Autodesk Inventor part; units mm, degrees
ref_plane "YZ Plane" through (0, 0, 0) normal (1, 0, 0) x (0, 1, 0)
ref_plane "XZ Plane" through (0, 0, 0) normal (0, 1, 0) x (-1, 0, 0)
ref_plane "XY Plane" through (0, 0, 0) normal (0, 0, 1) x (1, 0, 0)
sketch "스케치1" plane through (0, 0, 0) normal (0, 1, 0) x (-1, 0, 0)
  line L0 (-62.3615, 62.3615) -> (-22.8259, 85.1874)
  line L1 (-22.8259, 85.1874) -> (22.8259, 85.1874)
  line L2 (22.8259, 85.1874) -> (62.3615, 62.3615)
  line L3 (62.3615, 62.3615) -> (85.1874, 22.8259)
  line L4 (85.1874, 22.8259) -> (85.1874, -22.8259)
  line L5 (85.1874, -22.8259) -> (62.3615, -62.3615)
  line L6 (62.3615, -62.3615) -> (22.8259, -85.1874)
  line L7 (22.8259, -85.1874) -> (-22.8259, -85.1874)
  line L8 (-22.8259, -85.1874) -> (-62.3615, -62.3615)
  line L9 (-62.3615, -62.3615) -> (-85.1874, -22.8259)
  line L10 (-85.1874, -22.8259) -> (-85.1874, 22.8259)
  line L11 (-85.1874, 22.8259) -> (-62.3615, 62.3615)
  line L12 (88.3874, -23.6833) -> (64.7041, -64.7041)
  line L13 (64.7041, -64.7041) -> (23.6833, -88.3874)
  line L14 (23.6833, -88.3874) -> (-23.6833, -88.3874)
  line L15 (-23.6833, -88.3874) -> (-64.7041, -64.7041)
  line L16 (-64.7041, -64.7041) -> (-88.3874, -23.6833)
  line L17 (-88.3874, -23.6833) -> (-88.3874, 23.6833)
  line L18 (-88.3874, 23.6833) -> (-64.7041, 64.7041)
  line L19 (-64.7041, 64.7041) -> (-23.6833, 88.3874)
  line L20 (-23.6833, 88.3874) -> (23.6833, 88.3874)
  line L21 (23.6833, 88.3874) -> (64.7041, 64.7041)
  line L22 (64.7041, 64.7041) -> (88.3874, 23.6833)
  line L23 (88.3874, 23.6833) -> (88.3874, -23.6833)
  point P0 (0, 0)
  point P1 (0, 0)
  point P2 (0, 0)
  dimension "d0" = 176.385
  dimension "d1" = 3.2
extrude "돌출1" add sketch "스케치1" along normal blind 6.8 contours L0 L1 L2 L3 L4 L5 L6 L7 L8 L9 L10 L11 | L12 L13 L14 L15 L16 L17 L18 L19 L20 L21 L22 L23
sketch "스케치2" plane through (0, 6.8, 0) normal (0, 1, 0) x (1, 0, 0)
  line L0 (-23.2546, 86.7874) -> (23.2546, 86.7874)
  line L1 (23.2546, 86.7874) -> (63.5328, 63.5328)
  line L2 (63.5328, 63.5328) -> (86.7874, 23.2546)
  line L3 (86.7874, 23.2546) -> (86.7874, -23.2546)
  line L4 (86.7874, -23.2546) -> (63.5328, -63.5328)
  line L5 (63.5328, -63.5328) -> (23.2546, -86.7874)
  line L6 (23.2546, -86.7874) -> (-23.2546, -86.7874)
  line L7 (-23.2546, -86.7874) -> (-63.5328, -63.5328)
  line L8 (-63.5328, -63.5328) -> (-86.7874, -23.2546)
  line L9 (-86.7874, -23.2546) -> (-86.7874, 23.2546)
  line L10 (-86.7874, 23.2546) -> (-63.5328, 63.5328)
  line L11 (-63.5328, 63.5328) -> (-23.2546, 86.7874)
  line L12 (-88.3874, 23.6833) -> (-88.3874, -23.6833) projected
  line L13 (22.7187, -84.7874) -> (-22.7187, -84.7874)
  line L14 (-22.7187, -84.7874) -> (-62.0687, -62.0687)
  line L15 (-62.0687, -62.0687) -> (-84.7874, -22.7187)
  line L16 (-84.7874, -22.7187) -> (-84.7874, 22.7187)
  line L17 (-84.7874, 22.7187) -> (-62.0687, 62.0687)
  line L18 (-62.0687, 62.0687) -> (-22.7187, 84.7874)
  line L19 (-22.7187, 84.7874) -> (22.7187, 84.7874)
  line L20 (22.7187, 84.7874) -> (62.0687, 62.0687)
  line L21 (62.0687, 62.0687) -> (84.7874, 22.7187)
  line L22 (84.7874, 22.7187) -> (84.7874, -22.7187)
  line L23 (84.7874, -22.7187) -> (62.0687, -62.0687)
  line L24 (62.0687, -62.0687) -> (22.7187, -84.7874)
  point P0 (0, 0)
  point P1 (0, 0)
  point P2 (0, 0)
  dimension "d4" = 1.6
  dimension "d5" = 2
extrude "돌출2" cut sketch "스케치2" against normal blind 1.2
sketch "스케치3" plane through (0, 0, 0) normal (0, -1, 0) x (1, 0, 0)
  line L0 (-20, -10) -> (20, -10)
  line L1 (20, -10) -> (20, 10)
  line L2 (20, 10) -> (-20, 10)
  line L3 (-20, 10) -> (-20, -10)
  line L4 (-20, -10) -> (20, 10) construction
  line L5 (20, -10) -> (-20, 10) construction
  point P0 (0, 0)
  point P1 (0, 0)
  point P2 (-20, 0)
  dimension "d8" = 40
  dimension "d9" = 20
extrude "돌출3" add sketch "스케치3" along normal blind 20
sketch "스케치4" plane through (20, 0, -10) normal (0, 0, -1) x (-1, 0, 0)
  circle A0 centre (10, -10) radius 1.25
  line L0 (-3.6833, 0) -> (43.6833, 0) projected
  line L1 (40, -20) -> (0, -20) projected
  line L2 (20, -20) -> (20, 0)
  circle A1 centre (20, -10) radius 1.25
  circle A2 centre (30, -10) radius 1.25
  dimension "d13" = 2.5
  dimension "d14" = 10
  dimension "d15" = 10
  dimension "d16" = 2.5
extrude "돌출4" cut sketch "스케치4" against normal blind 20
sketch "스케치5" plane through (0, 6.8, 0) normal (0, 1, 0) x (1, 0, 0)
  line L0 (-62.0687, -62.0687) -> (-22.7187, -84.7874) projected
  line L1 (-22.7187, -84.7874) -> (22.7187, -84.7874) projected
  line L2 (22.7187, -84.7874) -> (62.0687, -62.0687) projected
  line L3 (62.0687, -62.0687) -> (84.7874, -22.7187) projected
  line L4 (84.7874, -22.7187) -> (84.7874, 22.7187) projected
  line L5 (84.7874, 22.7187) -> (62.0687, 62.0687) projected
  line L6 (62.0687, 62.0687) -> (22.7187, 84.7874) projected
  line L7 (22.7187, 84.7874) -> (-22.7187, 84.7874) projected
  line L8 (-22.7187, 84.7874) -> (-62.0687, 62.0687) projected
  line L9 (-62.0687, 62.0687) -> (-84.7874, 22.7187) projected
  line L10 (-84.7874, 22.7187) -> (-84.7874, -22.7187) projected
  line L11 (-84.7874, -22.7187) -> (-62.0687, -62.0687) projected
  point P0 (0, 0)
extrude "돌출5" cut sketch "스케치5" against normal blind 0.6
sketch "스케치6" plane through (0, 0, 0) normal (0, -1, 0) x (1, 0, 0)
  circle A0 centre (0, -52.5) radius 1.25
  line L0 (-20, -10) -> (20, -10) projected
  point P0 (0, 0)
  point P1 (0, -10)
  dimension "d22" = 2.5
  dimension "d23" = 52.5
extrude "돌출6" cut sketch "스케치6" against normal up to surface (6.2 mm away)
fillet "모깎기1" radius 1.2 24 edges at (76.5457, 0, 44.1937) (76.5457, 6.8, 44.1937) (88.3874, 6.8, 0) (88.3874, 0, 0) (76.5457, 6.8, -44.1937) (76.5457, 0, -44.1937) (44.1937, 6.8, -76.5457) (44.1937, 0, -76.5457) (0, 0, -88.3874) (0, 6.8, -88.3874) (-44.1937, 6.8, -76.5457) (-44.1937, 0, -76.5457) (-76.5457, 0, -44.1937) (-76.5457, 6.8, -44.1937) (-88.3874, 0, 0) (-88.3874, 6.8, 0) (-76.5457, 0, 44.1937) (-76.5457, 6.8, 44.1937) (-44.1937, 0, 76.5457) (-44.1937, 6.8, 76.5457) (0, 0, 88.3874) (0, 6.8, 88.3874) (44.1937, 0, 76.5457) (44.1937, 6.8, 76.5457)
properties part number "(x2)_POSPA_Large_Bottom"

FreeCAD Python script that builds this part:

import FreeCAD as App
import Part
import Sketcher
from FreeCAD import Vector
Q = App.Units.Quantity


def edges_at(feature, points):
    """Names of the edges that pass closest to the given points."""
    edges = feature.Shape.Edges
    near = lambda p: min(range(len(edges)), key=lambda i: edges[i].distToShape(Part.Vertex(*p))[0])
    return sorted({f"Edge{near(p) + 1}" for p in points})


def add_polygon(sketch, points):
    """Adds a closed chain of lines whose ends are joined by coincident constraints."""
    first, n = sketch.GeometryCount, len(points)
    for a, b in zip(points, points[1:] + points[:1]):
        sketch.addGeometry(Part.LineSegment(App.Vector(*a, 0), App.Vector(*b, 0)), False)
    for i in range(n):
        sketch.addConstraint(Sketcher.Constraint("Coincident", first + i, 2, first + (i + 1) % n, 1))

doc = App.newDocument("Part")
body = doc.addObject("PartDesign::Body", "Body")

sketch1 = doc.addObject("Sketcher::SketchObject", "Sketch")
body.addObject(sketch1)
sketch1.AttachmentSupport = (doc.XZ_Plane, [""])
sketch1.MapMode = "FlatFace"
add_polygon(sketch1, [(-64.7041, -64.7041), (-88.3874, -23.6833), (-88.3874, 23.6833), (-64.7041, 64.7041), (-23.6833, 88.3874), (23.6833, 88.3874), (64.7041, 64.7041), (88.3874, 23.6833), (88.3874, -23.6833), (64.7041, -64.7041), (23.6833, -88.3874), (-23.6833, -88.3874)])
sketch1.addConstraint(Sketcher.Constraint("Vertical", 1))
sketch1.addConstraint(Sketcher.Constraint("Horizontal", 4))
sketch1.addConstraint(Sketcher.Constraint("Vertical", 7))
sketch1.addConstraint(Sketcher.Constraint("Horizontal", 10))
sketch1.addConstraint(Sketcher.Constraint("Symmetric", 0, 2, 6, 2, -1, 1))
sketch1.addConstraint(Sketcher.Constraint("Symmetric", 2, 2, 8, 2, -1, 1))
sketch1.addConstraint(Sketcher.Constraint("Symmetric", 3, 2, 9, 2, -1, 1))
sketch1.addConstraint(Sketcher.Constraint("Symmetric", 5, 2, 11, 2, -1, 1))
sketch1.addConstraint(Sketcher.Constraint("Symmetric", 2, 2, 5, 2, -2))
sketch1.addConstraint(Sketcher.Constraint("Perpendicular", 0, 3))
sketch1.addConstraint(Sketcher.Constraint("Perpendicular", 2, 5))
sketch1.addConstraint(Sketcher.Constraint("Perpendicular", 5, 8))
sketch1.addConstraint(Sketcher.Constraint("Perpendicular", 8, 11))
sketch1.addConstraint(Sketcher.Constraint("Horizontal", 1, 2, 6, 2))
sketch1.addConstraint(Sketcher.Constraint("Equal", 10, 1))
sketch1.addConstraint(Sketcher.Constraint("Equal", 2, 3))
sketch1.addConstraint(Sketcher.Constraint("Angle", 0, Q("120 deg")))
sketch1.addConstraint(Sketcher.Constraint("DistanceX", 4, 1, 4, 2, 47.3666))
sketch1.addConstraint(Sketcher.Constraint("DistanceX", 2, 2, -1, 1, 64.704))
pad1 = doc.addObject("PartDesign::Pad", "Pad")
body.addObject(pad1)
pad1.Profile = sketch1
pad1.Length = 6.8
pad1.Reversed = True

sketch2 = doc.addObject("Sketcher::SketchObject", "Sketch001")
body.addObject(sketch2)
sketch2.AttachmentSupport = (doc.XZ_Plane, [""])
sketch2.MapMode = "FlatFace"
sketch2.AttachmentOffset = App.Placement(Vector(0, 0, -6.8), App.Rotation())
add_polygon(sketch2, [(23.2546, -86.7874), (-23.2546, -86.7874), (-63.5328, -63.5328), (-86.7874, -23.2546), (-86.7874, 23.2546), (-63.5328, 63.5328), (-23.2546, 86.7874), (23.2546, 86.7874), (63.5328, 63.5328), (86.7874, 23.2546), (86.7874, -23.2546), (63.5328, -63.5328)])
add_polygon(sketch2, [(62.0687, 62.0687), (22.7187, 84.7874), (-22.7187, 84.7874), (-62.0687, 62.0687), (-84.7874, 22.7187), (-84.7874, -22.7187), (-62.0687, -62.0687), (-22.7187, -84.7874), (22.7187, -84.7874), (62.0687, -62.0687), (84.7874, -22.7187), (84.7874, 22.7187)])
sketch2.addConstraint(Sketcher.Constraint("Horizontal", 0))
sketch2.addConstraint(Sketcher.Constraint("Vertical", 3))
sketch2.addConstraint(Sketcher.Constraint("Horizontal", 6))
sketch2.addConstraint(Sketcher.Constraint("Vertical", 9))
sketch2.addConstraint(Sketcher.Constraint("Horizontal", 13))
sketch2.addConstraint(Sketcher.Constraint("Vertical", 16))
sketch2.addConstraint(Sketcher.Constraint("Horizontal", 19))
sketch2.addConstraint(Sketcher.Constraint("Vertical", 22))
sketch2.addConstraint(Sketcher.Constraint("Symmetric", 0, 2, 6, 2, -1, 1))
sketch2.addConstraint(Sketcher.Constraint("Symmetric", 1, 2, 7, 2, -1, 1))
sketch2.addConstraint(Sketcher.Constraint("Symmetric", 2, 2, 8, 2, -1, 1))
sketch2.addConstraint(Sketcher.Constraint("Symmetric", 4, 2, 10, 2, -1, 1))
sketch2.addConstraint(Sketcher.Constraint("Symmetric", 12, 2, 18, 2, -1, 1))
sketch2.addConstraint(Sketcher.Constraint("Symmetric", 14, 2, 20, 2, -1, 1))
sketch2.addConstraint(Sketcher.Constraint("Symmetric", 15, 2, 21, 2, -1, 1))
sketch2.addConstraint(Sketcher.Constraint("Symmetric", 17, 2, 23, 2, -1, 1))
sketch2.addConstraint(Sketcher.Constraint("Symmetric", 4, 2, 7, 2, -2))
sketch2.addConstraint(Sketcher.Constraint("Symmetric", 17, 2, 20, 2, -2))
sketch2.addConstraint(Sketcher.Constraint("Perpendicular", 1, 4))
sketch2.addConstraint(Sketcher.Constraint("Perpendicular", 2, 5))
sketch2.addConstraint(Sketcher.Constraint("Perpendicular", 7, 10))
sketch2.addConstraint(Sketcher.Constraint("Perpendicular", 8, 11))
sketch2.addConstraint(Sketcher.Constraint("Perpendicular", 10, 12))
sketch2.addConstraint(Sketcher.Constraint("Parallel", 11, 14))
sketch2.addConstraint(Sketcher.Constraint("Perpendicular", 12, 15))
sketch2.addConstraint(Sketcher.Constraint("Perpendicular", 14, 17))
sketch2.addConstraint(Sketcher.Constraint("Perpendicular", 17, 20))
sketch2.addConstraint(Sketcher.Constraint("Perpendicular", 20, 23))
sketch2.addConstraint(Sketcher.Constraint("Horizontal", 3, 2, 8, 2))
sketch2.addConstraint(Sketcher.Constraint("Equal", 6, 3))
sketch2.addConstraint(Sketcher.Constraint("Equal", 19, 16))
sketch2.addConstraint(Sketcher.Constraint("Equal", 1, 2))
sketch2.addConstraint(Sketcher.Constraint("Equal", 14, 15))
sketch2.addConstraint(Sketcher.Constraint("DistanceY", 12, 2, 6, 2, 2.0))
sketch2.addConstraint(Sketcher.Constraint("Angle", 1, Q("150 deg")))
sketch2.addConstraint(Sketcher.Constraint("DistanceX", 14, 2, 13, 2, 39.35))
sketch2.addConstraint(Sketcher.Constraint("DistanceX", 0, 2, 0, 1, 46.5092))
sketch2.addConstraint(Sketcher.Constraint("DistanceX", 13, 2, 13, 1, 45.4374))
pocket1 = doc.addObject("PartDesign::Pocket", "Pocket")
body.addObject(pocket1)
pocket1.Profile = sketch2
pocket1.Length = 1.2
pocket1.Reversed = True

sketch3 = doc.addObject("Sketcher::SketchObject", "Sketch002")
body.addObject(sketch3)
sketch3.AttachmentSupport = (doc.XZ_Plane, [""])
sketch3.MapMode = "FlatFace"
add_polygon(sketch3, [(-20, 10), (-20, -10), (20, -10), (20, 10)])
sketch3.addConstraint(Sketcher.Constraint("Vertical", 0))
sketch3.addConstraint(Sketcher.Constraint("Horizontal", 1))
sketch3.addConstraint(Sketcher.Constraint("Vertical", 2))
sketch3.addConstraint(Sketcher.Constraint("Horizontal", 3))
sketch3.addConstraint(Sketcher.Constraint("Symmetric", 0, 2, 2, 2, -1, 1))
sketch3.addConstraint(Sketcher.Constraint("DistanceX", 1, 1, 1, 2, 40.0))
sketch3.addConstraint(Sketcher.Constraint("DistanceY", 0, 2, 0, 1, 20.0))
pad2 = doc.addObject("PartDesign::Pad", "Pad001")
body.addObject(pad2)
pad2.Profile = sketch3
pad2.Length = 20

sketch4 = doc.addObject("Sketcher::SketchObject", "Sketch003")
body.addObject(sketch4)
sketch4.AttachmentSupport = (doc.XY_Plane, [""])
sketch4.MapMode = "FlatFace"
sketch4.AttachmentOffset = App.Placement(Vector(0, 0, -10), App.Rotation())
sketch4.addGeometry(Part.Circle(Vector(10, -10, 0), Vector(0, 0, 1), 1.25), False)
sketch4.addGeometry(Part.Circle(Vector(0, -10, 0), Vector(0, 0, 1), 1.25), False)
sketch4.addGeometry(Part.Circle(Vector(-10, -10, 0), Vector(0, 0, 1), 1.25), False)
sketch4.addConstraint(Sketcher.Constraint("Equal", 0, 1))
sketch4.addConstraint(Sketcher.Constraint("Equal", 1, 2))
sketch4.addConstraint(Sketcher.Constraint("Symmetric", 0, 3, 2, 3, -2))
sketch4.addConstraint(Sketcher.Constraint("PointOnObject", 1, 3, -2))
sketch4.addConstraint(Sketcher.Constraint("Horizontal", 0, 3, 1, 3))
sketch4.addConstraint(Sketcher.Constraint("Diameter", 0, 2.5))
sketch4.addConstraint(Sketcher.Constraint("DistanceX", -1, 1, 0, 3, 10.0))
sketch4.addConstraint(Sketcher.Constraint("DistanceY", 0, 3, -1, 1, 10.0))
pocket2 = doc.addObject("PartDesign::Pocket", "Pocket001")
body.addObject(pocket2)
pocket2.Profile = sketch4
pocket2.Length = 20
pocket2.Reversed = True

sketch5 = doc.addObject("Sketcher::SketchObject", "Sketch004")
body.addObject(sketch5)
sketch5.AttachmentSupport = (doc.XZ_Plane, [""])
sketch5.MapMode = "FlatFace"
sketch5.AttachmentOffset = App.Placement(Vector(0, 0, -6.8), App.Rotation())
add_polygon(sketch5, [(-84.7874, 22.7187), (-62.0687, 62.0687), (-22.7187, 84.7874), (22.7187, 84.7874), (62.0687, 62.0687), (84.7874, 22.7187), (84.7874, -22.7187), (62.0687, -62.0687), (22.7187, -84.7874), (-22.7187, -84.7874), (-62.0687, -62.0687), (-84.7874, -22.7187)])
sketch5.addConstraint(Sketcher.Constraint("Horizontal", 2))
sketch5.addConstraint(Sketcher.Constraint("Vertical", 5))
sketch5.addConstraint(Sketcher.Constraint("Horizontal", 8))
sketch5.addConstraint(Sketcher.Constraint("Vertical", 11))
sketch5.addConstraint(Sketcher.Constraint("Symmetric", 0, 2, 6, 2, -1, 1))
sketch5.addConstraint(Sketcher.Constraint("Symmetric", 1, 2, 7, 2, -1, 1))
sketch5.addConstraint(Sketcher.Constraint("Symmetric", 3, 2, 9, 2, -1, 1))
sketch5.addConstraint(Sketcher.Constraint("Symmetric", 4, 2, 10, 2, -1, 1))
sketch5.addConstraint(Sketcher.Constraint("Symmetric", 0, 2, 3, 2, -2))
sketch5.addConstraint(Sketcher.Constraint("Perpendicular", 0, 3))
sketch5.addConstraint(Sketcher.Constraint("Perpendicular", 1, 4))
sketch5.addConstraint(Sketcher.Constraint("Perpendicular", 3, 6))
sketch5.addConstraint(Sketcher.Constraint("Perpendicular", 6, 9))
sketch5.addConstraint(Sketcher.Constraint("Horizontal", 5, 2, 10, 2))
sketch5.addConstraint(Sketcher.Constraint("Equal", 8, 5))
sketch5.addConstraint(Sketcher.Constraint("Equal", 0, 1))
sketch5.addConstraint(Sketcher.Constraint("Angle", 0, Q("60 deg")))
sketch5.addConstraint(Sketcher.Constraint("DistanceX", 0, 2, 1, 2, 39.35))
sketch5.addConstraint(Sketcher.Constraint("DistanceX", 2, 1, 2, 2, 45.4374))
pocket3 = doc.addObject("PartDesign::Pocket", "Pocket002")
body.addObject(pocket3)
pocket3.Profile = sketch5
pocket3.Length = 0.6
pocket3.Reversed = True

sketch6 = doc.addObject("Sketcher::SketchObject", "Sketch005")
body.addObject(sketch6)
sketch6.AttachmentSupport = (doc.XZ_Plane, [""])
sketch6.MapMode = "FlatFace"
sketch6.addGeometry(Part.Circle(Vector(0, -52.5, 0), Vector(0, 0, 1), 1.25), False)
sketch6.addConstraint(Sketcher.Constraint("PointOnObject", 0, 3, -2))
sketch6.addConstraint(Sketcher.Constraint("Diameter", 0, 2.5))
sketch6.addConstraint(Sketcher.Constraint("DistanceY", 0, 3, -1, 1, 52.5))
pocket4 = doc.addObject("PartDesign::Pocket", "Pocket003")
body.addObject(pocket4)
pocket4.Profile = sketch6
pocket4.Length = 6.2
doc.recompute()

fillet = doc.addObject("PartDesign::Fillet", "Fillet")
body.addObject(fillet)
fillet.Base = (pocket4, edges_at(pocket4, [
    (76.546, 0, 44.194),
    (76.546, 6.8, 44.194),
    (88.387, 6.8, 0),
    (88.387, 0, 0),
    (76.546, 6.8, -44.194),
    (76.546, 0, -44.194),
    (44.194, 6.8, -76.546),
    (44.194, 0, -76.546),
    (0, 0, -88.387),
    (0, 6.8, -88.387),
    (-44.194, 6.8, -76.546),
    (-44.194, 0, -76.546),
    (-76.546, 0, -44.194),
    (-76.546, 6.8, -44.194),
    (-88.387, 0, 0),
    (-88.387, 6.8, 0),
    (-76.546, 0, 44.194),
    (-76.546, 6.8, 44.194),
    (-44.194, 0, 76.546),
    (-44.194, 6.8, 76.546),
    (0, 0, 88.387),
    (0, 6.8, 88.387),
    (44.194, 0, 76.546),
    (44.194, 6.8, 76.546),
]))
fillet.Radius = 1.2

doc.recompute()
